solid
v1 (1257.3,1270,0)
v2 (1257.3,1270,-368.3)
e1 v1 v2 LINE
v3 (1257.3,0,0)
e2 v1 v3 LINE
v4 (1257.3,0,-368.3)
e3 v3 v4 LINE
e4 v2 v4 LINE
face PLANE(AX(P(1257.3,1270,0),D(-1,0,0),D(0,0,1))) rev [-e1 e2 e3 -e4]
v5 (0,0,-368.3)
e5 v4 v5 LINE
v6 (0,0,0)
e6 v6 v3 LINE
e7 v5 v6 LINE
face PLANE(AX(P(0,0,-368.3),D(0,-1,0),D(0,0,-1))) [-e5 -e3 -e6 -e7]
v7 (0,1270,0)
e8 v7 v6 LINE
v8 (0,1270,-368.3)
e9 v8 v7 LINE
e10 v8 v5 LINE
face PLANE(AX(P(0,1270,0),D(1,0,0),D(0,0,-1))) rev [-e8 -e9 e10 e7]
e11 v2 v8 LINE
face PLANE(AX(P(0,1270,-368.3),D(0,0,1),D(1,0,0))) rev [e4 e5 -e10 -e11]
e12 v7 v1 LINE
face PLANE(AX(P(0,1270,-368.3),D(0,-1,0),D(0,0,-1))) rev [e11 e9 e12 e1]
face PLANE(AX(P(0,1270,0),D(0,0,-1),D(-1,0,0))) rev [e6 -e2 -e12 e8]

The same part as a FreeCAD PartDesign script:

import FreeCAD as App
import Part
import Sketcher
Q = App.Units.Quantity


def add_polygon(sketch, points):
    """Adds a closed chain of lines whose ends are joined by coincident constraints."""
    first, n = sketch.GeometryCount, len(points)
    for a, b in zip(points, points[1:] + points[:1]):
        sketch.addGeometry(Part.LineSegment(App.Vector(*a, 0), App.Vector(*b, 0)), False)
    for i in range(n):
        sketch.addConstraint(Sketcher.Constraint("Coincident", first + i, 2, first + (i + 1) % n, 1))

doc = App.newDocument("Part")
body = doc.addObject("PartDesign::Body", "Body")

# Sketch on XZ plane
sketch1 = doc.addObject("Sketcher::SketchObject", "Sketch")
body.addObject(sketch1)
sketch1.AttachmentSupport = (doc.XZ_Plane, [""])
sketch1.MapMode = "FlatFace"
add_polygon(sketch1, [(0, -368), (0, 0), (1257, 0), (1257, -368)])  # lines 0-3
sketch1.addConstraint([
    Sketcher.Constraint("Vertical", 0),
    Sketcher.Constraint("Horizontal", 1),
    Sketcher.Constraint("Vertical", 2),
    Sketcher.Constraint("Horizontal", 3),
    Sketcher.Constraint("Coincident", 0, 2, -1, 1),
    Sketcher.Constraint("DistanceX", 1, 1, 1, 2, Q("49.5 in")),
    Sketcher.Constraint("DistanceY", 0, 1, 0, 2, Q("14.5 in")),
])
pad1 = doc.addObject("PartDesign::Pad", "Pad")
body.addObject(pad1)
pad1.Profile = sketch1
pad1.Length = Q("50 in")
pad1.Reversed = True

doc.recompute()
